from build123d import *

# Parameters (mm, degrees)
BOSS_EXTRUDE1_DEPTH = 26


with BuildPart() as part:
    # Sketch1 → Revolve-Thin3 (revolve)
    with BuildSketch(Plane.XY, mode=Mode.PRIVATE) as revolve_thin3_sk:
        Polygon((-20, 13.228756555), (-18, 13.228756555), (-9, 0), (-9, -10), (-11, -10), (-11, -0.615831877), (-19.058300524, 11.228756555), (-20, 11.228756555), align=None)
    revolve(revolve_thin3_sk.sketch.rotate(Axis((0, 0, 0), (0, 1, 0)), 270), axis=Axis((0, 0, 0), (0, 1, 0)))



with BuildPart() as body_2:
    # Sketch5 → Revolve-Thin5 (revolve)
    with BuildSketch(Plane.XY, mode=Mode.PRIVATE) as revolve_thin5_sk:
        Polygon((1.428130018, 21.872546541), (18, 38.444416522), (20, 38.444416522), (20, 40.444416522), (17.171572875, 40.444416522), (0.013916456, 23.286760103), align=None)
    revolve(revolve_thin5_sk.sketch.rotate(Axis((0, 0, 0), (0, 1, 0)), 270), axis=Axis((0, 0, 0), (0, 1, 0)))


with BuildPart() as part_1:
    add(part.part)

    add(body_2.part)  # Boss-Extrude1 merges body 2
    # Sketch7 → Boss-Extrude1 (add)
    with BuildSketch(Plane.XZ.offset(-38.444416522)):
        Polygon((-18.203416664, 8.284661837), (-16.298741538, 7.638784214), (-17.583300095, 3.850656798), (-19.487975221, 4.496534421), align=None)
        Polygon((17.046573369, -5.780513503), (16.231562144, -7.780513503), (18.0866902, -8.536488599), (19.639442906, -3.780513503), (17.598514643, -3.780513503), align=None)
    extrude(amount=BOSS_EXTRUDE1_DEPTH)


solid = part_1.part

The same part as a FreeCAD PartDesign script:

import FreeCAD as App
import Part
import Sketcher

V = App.Vector
Q = App.Units.Quantity


def add_polygon(sketch, points):
    """Adds a closed chain of lines whose ends are joined by coincident constraints."""
    first, n = sketch.GeometryCount, len(points)
    for a, b in zip(points, points[1:] + points[:1]):
        sketch.addGeometry(Part.LineSegment(App.Vector(*a, 0), App.Vector(*b, 0)), False)
    for i in range(n):
        sketch.addConstraint(Sketcher.Constraint("Coincident", first + i, 2, first + (i + 1) % n, 1))

doc = App.newDocument("Part")
body = doc.addObject("PartDesign::Body", "Body")

# Sketch on XY plane
sketch1 = body.newObject("Sketcher::SketchObject", "Sketch")
sketch1.AttachmentSupport = (doc.getObject("XY_Plane"), [""])
sketch1.MapMode = "FlatFace"
add_polygon(sketch1, [(-18, 13.2), (-20, 13.2), (-20, 11.2), (-19.1, 11.2), (-11, -0.6), (-11, -10), (-9, -10), (-9, 0)])  # lines 0-7
sketch1.addConstraint(Sketcher.Constraint("Horizontal", 0))
sketch1.addConstraint(Sketcher.Constraint("Vertical", 1))
sketch1.addConstraint(Sketcher.Constraint("Horizontal", 2))
sketch1.addConstraint(Sketcher.Constraint("Vertical", 4))
sketch1.addConstraint(Sketcher.Constraint("Horizontal", 5))
sketch1.addConstraint(Sketcher.Constraint("Vertical", 6))
sketch1.addConstraint(Sketcher.Constraint("PointOnObject", 6, 2, -1))
sketch1.addConstraint(Sketcher.Constraint("Parallel", 3, 7))
sketch1.addConstraint(Sketcher.Constraint("Equal", 0, 5))
sketch1.addConstraint(Sketcher.Constraint("Equal", 5, 1))
sketch1.addConstraint(Sketcher.Constraint("DistanceX", 0, 2, 0, 1, 2.0))
sketch1.addConstraint(Sketcher.Constraint("DistanceY", 6, 1, 6, 2, 10.0))
sketch1.addConstraint(Sketcher.Constraint("Distance", 7, 16.0))
sketch1.addConstraint(Sketcher.Constraint("DistanceX", 0, 2, -1, 1, 20.0))
sketch1.addConstraint(Sketcher.Constraint("DistanceX", 3, 2, -1, 1, 11.0))
sketch1.addConstraint(Sketcher.Constraint("DistanceX", 2, 1, 2, 2, 0.941699))
revolution = body.newObject("PartDesign::Revolution", "Revolution")
revolution.Profile = sketch1
revolution.ReferenceAxis = (sketch1, ["V_Axis"])
revolution.Angle = 360
body2 = doc.addObject("PartDesign::Body", "Body001")

# Sketch on XY plane
sketch2 = body2.newObject("Sketcher::SketchObject", "Sketch001")
sketch2.AttachmentSupport = (doc.getObject("XY_Plane001"), [""])
sketch2.MapMode = "FlatFace"
add_polygon(sketch2, [(1.4, 21.9), (18, 38.4), (20, 38.4), (20, 40.4), (17.2, 40.4), (0, 23.3)])  # lines 0-5
sketch2.addConstraint(Sketcher.Constraint("Horizontal", 1))
sketch2.addConstraint(Sketcher.Constraint("Vertical", 2))
sketch2.addConstraint(Sketcher.Constraint("Horizontal", 3))
sketch2.addConstraint(Sketcher.Constraint("Parallel", 0, 4))
sketch2.addConstraint(Sketcher.Constraint("Perpendicular", 4, 5))
sketch2.addConstraint(Sketcher.Constraint("Equal", 1, 2))
sketch2.addConstraint(Sketcher.Constraint("DistanceX", 1, 1, 1, 2, 2.0))
sketch2.addConstraint(Sketcher.Constraint("Angle", 0, Q("45 deg")))
sketch2.addConstraint(Sketcher.Constraint("Distance", 5, 2.0))
sketch2.addConstraint(Sketcher.Constraint("DistanceX", -1, 1, 0, 2, 18.0))
sketch2.addConstraint(Sketcher.Constraint("Distance", 4, 24.26459))
sketch2.addConstraint(Sketcher.Constraint("DistanceY", -1, 1, 4, 2, 23.28676))
revolution2 = body2.newObject("PartDesign::Revolution", "Revolution001")
revolution2.Profile = sketch2
revolution2.ReferenceAxis = (sketch2, ["V_Axis"])
revolution2.Angle = 360
body.AllowCompound = True
doc.recompute()

boolean = body.newObject("PartDesign::Boolean", "Boolean")
boolean.Type = "Fuse"
boolean.addObjects([body2])

# Sketch on XZ plane
sketch3 = body.newObject("Sketcher::SketchObject", "Sketch002")
sketch3.AttachmentSupport = (doc.getObject("XZ_Plane"), [""])
sketch3.MapMode = "FlatFace"
sketch3.AttachmentOffset = App.Placement(V(0, 0, -38.444417), App.Rotation())
add_polygon(sketch3, [(-16.3, 7.6), (-18.2, 8.3), (-19.5, 4.5), (-17.6, 3.9)])  # lines 0-3
add_polygon(sketch3, [(17, -5.8), (16.2, -7.8), (18.1, -8.5), (19.6, -3.8), (17.6, -3.8)])  # lines 4-8
sketch3.addConstraint(Sketcher.Constraint("Horizontal", 7))
sketch3.addConstraint(Sketcher.Constraint("Perpendicular", 0, 1))
sketch3.addConstraint(Sketcher.Constraint("Perpendicular", 1, 2))
sketch3.addConstraint(Sketcher.Constraint("Perpendicular", 2, 3))
sketch3.addConstraint(Sketcher.Constraint("Perpendicular", 4, 5))
sketch3.addConstraint(Sketcher.Constraint("Distance", 1, 4.0))
sketch3.addConstraint(Sketcher.Constraint("DistanceY", 4, 2, 6, 2, 4.0))
sketch3.addConstraint(Sketcher.Constraint("DistanceY", 8, 2, 7, 2, 2.0))
sketch3.addConstraint(Sketcher.Constraint("DistanceX", 7, 2, 7, 1, 2.040928))
sketch3.addConstraint(Sketcher.Constraint("DistanceX", 2, 2, -1, 1, 17.5833))
sketch3.addConstraint(Sketcher.Constraint("DistanceY", -1, 1, 0, 2, 8.284662))
sketch3.addConstraint(Sketcher.Constraint("DistanceX", 3, 2, -1, 1, 16.298742))
sketch3.addConstraint(Sketcher.Constraint("DistanceX", -1, 1, 5, 2, 18.08669))
sketch3.addConstraint(Sketcher.Constraint("DistanceY", 5, 2, -1, 1, 8.536489))
sketch3.addConstraint(Sketcher.Constraint("DistanceY", 1, 2, 3, 2, 3.14225))
sketch3.addConstraint(Sketcher.Constraint("DistanceY", 4, 2, 2, 2, 11.63117))
sketch3.addConstraint(Sketcher.Constraint("DistanceX", 0, 2, 4, 2, 34.434979))
sketch3.addConstraint(Sketcher.Constraint("DistanceX", 4, 2, 6, 2, 3.407881))
pad1 = body.newObject("PartDesign::Pad", "Pad")
pad1.Profile = sketch3
pad1.Length = 26

doc.recompute()
